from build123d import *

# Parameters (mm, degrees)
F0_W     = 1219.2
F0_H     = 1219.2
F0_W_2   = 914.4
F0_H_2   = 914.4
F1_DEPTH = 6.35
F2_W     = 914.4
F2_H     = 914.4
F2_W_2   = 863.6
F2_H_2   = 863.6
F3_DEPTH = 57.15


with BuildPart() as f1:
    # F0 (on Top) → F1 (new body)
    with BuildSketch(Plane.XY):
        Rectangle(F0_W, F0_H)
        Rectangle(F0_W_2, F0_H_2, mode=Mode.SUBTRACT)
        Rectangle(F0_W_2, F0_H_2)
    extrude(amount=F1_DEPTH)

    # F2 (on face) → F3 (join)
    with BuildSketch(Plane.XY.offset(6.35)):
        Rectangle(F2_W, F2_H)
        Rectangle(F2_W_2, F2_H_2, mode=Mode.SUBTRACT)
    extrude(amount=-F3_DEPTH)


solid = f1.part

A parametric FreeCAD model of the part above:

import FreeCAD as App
import Part
import Sketcher
from FreeCAD import Vector
Q = App.Units.Quantity

doc = App.newDocument("Part")
body = doc.addObject("PartDesign::Body", "Body")

sketch1 = doc.addObject("Sketcher::SketchObject", "Sketch")
body.addObject(sketch1)
sketch1.AttachmentSupport = (doc.XY_Plane, [""])
sketch1.MapMode = "FlatFace"
sketch1.addGeometry([
    Part.LineSegment(Vector(-610, 610, 0), Vector(-610, -610, 0)),
    Part.LineSegment(Vector(-610, -610, 0), Vector(610, -610, 0)),
    Part.LineSegment(Vector(610, -610, 0), Vector(610, 610, 0)),
    Part.LineSegment(Vector(610, 610, 0), Vector(-610, 610, 0)),
], False)
sketch1.addConstraint([
    Sketcher.Constraint("Coincident", 0, 2, 1, 1),
    Sketcher.Constraint("Coincident", 1, 2, 2, 1),
    Sketcher.Constraint("Coincident", 2, 2, 3, 1),
    Sketcher.Constraint("Coincident", 3, 2, 0, 1),
    Sketcher.Constraint("Vertical", 0),
    Sketcher.Constraint("Horizontal", 1),
    Sketcher.Constraint("Vertical", 2),
    Sketcher.Constraint("Horizontal", 3),
    Sketcher.Constraint("Symmetric", 0, 2, 2, 2, -1, 1),
    Sketcher.Constraint("Equal", 3, 0),
    Sketcher.Constraint("DistanceX", 1, 1, 1, 2, Q("48 in")),
])
pad1 = doc.addObject("PartDesign::Pad", "Pad")
body.addObject(pad1)
pad1.Profile = sketch1
pad1.Length = Q("0.25 in")

sketch2 = doc.addObject("Sketcher::SketchObject", "Sketch001")
body.addObject(sketch2)
sketch2.AttachmentSupport = (doc.XY_Plane, [""])
sketch2.MapMode = "FlatFace"
sketch2.AttachmentOffset = App.Placement(Vector(0, 0, 0.25 * 25.4), App.Rotation())
sketch2.addGeometry([
    Part.LineSegment(Vector(-457, 457, 0), Vector(-457, -457, 0)),
    Part.LineSegment(Vector(-457, -457, 0), Vector(457, -457, 0)),
    Part.LineSegment(Vector(457, -457, 0), Vector(457, 457, 0)),
    Part.LineSegment(Vector(457, 457, 0), Vector(-457, 457, 0)),
    Part.LineSegment(Vector(432, -432, 0), Vector(-432, -432, 0)),
    Part.LineSegment(Vector(-432, -432, 0), Vector(-432, 432, 0)),
    Part.LineSegment(Vector(-432, 432, 0), Vector(432, 432, 0)),
    Part.LineSegment(Vector(432, 432, 0), Vector(432, -432, 0)),
], False)
sketch2.addConstraint([
    Sketcher.Constraint("Coincident", 0, 2, 1, 1),
    Sketcher.Constraint("Coincident", 1, 2, 2, 1),
    Sketcher.Constraint("Coincident", 2, 2, 3, 1),
    Sketcher.Constraint("Coincident", 3, 2, 0, 1),
    Sketcher.Constraint("Coincident", 4, 2, 5, 1),
    Sketcher.Constraint("Coincident", 5, 2, 6, 1),
    Sketcher.Constraint("Coincident", 6, 2, 7, 1),
    Sketcher.Constraint("Coincident", 7, 2, 4, 1),
    Sketcher.Constraint("Vertical", 0),
    Sketcher.Constraint("Horizontal", 1),
    Sketcher.Constraint("Vertical", 2),
    Sketcher.Constraint("Horizontal", 3),
    Sketcher.Constraint("Horizontal", 4),
    Sketcher.Constraint("Vertical", 5),
    Sketcher.Constraint("Horizontal", 6),
    Sketcher.Constraint("Vertical", 7),
    Sketcher.Constraint("Symmetric", 0, 2, 2, 2, -1, 1),
    Sketcher.Constraint("Symmetric", 4, 2, 6, 2, -1, 1),
    Sketcher.Constraint("Equal", 3, 0),
    Sketcher.Constraint("Equal", 6, 5),
    Sketcher.Constraint("DistanceX", 1, 1, 1, 2, Q("36 in")),
    Sketcher.Constraint("DistanceX", 4, 2, 4, 1, Q("34 in")),
])
pad2 = doc.addObject("PartDesign::Pad", "Pad001")
body.addObject(pad2)
pad2.Profile = sketch2
pad2.Length = Q("2.25 in")
pad2.Reversed = True

doc.recompute()
